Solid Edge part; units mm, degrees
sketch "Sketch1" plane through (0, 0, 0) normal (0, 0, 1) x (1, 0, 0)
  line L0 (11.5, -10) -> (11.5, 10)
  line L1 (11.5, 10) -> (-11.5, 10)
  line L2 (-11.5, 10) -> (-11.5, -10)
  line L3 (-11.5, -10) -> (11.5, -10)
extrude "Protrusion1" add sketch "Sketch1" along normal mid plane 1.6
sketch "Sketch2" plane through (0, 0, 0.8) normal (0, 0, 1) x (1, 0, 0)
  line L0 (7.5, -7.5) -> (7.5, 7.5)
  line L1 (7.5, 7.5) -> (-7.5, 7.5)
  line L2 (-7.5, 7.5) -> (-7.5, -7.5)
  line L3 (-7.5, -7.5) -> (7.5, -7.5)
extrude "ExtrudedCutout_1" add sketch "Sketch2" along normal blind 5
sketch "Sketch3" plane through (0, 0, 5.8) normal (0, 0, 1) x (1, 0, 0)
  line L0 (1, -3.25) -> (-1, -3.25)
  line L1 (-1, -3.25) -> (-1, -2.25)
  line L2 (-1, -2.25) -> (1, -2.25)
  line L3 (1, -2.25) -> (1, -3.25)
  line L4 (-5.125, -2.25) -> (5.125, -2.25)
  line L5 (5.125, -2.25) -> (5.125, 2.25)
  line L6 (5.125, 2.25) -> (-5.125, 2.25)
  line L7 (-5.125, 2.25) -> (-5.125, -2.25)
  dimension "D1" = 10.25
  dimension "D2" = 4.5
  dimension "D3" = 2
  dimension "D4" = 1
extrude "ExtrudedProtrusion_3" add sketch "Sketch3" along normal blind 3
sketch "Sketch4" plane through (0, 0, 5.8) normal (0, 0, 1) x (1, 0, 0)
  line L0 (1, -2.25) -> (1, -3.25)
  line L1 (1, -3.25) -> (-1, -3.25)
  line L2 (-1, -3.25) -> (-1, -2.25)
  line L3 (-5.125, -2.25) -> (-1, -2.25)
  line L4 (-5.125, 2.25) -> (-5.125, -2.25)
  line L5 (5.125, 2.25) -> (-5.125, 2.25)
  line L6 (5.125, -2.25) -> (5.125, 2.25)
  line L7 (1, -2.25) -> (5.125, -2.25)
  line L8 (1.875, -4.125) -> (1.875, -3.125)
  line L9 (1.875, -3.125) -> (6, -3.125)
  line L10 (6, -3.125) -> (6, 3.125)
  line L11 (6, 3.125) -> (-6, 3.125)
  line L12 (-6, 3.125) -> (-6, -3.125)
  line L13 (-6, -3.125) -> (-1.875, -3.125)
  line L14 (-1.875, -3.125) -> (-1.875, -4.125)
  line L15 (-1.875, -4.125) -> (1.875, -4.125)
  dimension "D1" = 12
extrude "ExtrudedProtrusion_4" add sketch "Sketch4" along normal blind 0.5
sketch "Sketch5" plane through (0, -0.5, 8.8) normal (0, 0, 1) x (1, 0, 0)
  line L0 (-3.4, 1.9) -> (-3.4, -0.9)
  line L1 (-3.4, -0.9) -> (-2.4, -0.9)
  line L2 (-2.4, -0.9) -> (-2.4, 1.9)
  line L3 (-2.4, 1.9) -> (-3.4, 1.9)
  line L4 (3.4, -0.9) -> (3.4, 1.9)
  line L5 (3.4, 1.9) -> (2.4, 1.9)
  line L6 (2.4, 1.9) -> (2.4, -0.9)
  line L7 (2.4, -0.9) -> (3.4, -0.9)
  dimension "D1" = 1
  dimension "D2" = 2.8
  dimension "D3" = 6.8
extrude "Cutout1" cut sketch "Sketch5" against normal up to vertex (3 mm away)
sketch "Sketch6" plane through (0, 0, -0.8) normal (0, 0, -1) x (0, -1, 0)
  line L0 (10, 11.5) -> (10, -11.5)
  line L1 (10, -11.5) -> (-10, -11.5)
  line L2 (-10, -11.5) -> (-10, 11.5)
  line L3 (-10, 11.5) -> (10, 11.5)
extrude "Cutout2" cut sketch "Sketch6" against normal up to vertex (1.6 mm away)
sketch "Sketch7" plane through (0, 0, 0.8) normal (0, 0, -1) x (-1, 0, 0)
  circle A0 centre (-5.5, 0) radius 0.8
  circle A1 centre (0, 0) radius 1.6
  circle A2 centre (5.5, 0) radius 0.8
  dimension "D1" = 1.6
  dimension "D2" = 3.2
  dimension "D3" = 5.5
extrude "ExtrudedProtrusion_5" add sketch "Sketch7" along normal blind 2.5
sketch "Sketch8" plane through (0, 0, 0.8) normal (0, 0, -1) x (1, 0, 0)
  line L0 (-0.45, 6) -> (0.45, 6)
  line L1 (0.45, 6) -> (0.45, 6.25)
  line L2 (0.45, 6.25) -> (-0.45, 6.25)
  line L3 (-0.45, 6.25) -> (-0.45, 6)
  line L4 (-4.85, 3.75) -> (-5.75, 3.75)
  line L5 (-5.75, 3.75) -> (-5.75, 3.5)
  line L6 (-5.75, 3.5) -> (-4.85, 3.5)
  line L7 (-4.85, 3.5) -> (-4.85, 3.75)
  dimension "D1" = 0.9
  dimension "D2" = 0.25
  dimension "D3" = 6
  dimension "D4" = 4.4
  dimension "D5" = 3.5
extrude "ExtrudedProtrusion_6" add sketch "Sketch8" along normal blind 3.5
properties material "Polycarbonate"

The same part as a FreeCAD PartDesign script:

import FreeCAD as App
import Part
import Sketcher
from FreeCAD import Vector
Q = App.Units.Quantity


def add_polygon(sketch, points):
    """Adds a closed chain of lines whose ends are joined by coincident constraints."""
    first, n = sketch.GeometryCount, len(points)
    for a, b in zip(points, points[1:] + points[:1]):
        sketch.addGeometry(Part.LineSegment(App.Vector(*a, 0), App.Vector(*b, 0)), False)
    for i in range(n):
        sketch.addConstraint(Sketcher.Constraint("Coincident", first + i, 2, first + (i + 1) % n, 1))

doc = App.newDocument("Part")
body = doc.addObject("PartDesign::Body", "Body")

# Sketch on XY plane
sketch1 = body.newObject("Sketcher::SketchObject", "Sketch")
sketch1.AttachmentSupport = (doc.getObject("XY_Plane"), [""])
sketch1.MapMode = "FlatFace"
add_polygon(sketch1, [(-12, -10), (12, -10), (12, 10), (-12, 10)])  # lines 0-3
sketch1.addConstraint(Sketcher.Constraint("Horizontal", 0))
sketch1.addConstraint(Sketcher.Constraint("Vertical", 1))
sketch1.addConstraint(Sketcher.Constraint("Horizontal", 2))
sketch1.addConstraint(Sketcher.Constraint("Vertical", 3))
sketch1.addConstraint(Sketcher.Constraint("Symmetric", 0, 2, 2, 2, -1, 1))
sketch1.addConstraint(Sketcher.Constraint("DistanceX", 0, 1, 0, 2, Q("23 mm")))
sketch1.addConstraint(Sketcher.Constraint("DistanceY", 1, 1, 1, 2, Q("20 mm")))
pad1 = body.newObject("PartDesign::Pad", "Pad")
pad1.Profile = sketch1
pad1.Length = 1.6
pad1.Midplane = True

# Sketch on XY plane
sketch2 = body.newObject("Sketcher::SketchObject", "Sketch001")
sketch2.AttachmentSupport = (doc.getObject("XY_Plane"), [""])
sketch2.MapMode = "FlatFace"
sketch2.AttachmentOffset = App.Placement(Vector(0, 0, 0.8), App.Rotation())
add_polygon(sketch2, [(-8, -8), (8, -8), (8, 8), (-8, 8)])  # lines 0-3
sketch2.addConstraint(Sketcher.Constraint("Horizontal", 0))
sketch2.addConstraint(Sketcher.Constraint("Vertical", 1))
sketch2.addConstraint(Sketcher.Constraint("Horizontal", 2))
sketch2.addConstraint(Sketcher.Constraint("Vertical", 3))
sketch2.addConstraint(Sketcher.Constraint("Symmetric", 0, 2, 2, 2, -1, 1))
sketch2.addConstraint(Sketcher.Constraint("Equal", 2, 1))
sketch2.addConstraint(Sketcher.Constraint("DistanceX", 0, 1, 0, 2, Q("15 mm")))
pad2 = body.newObject("PartDesign::Pad", "Pad001")
pad2.Profile = sketch2
pad2.Length = 5

# Sketch on XY plane
sketch3 = body.newObject("Sketcher::SketchObject", "Sketch002")
sketch3.AttachmentSupport = (doc.getObject("XY_Plane"), [""])
sketch3.MapMode = "FlatFace"
sketch3.AttachmentOffset = App.Placement(Vector(0, 0, 5.8), App.Rotation())
add_polygon(sketch3, [(-1, -3.2), (1, -3.2), (1, -2.2), (5.1, -2.2), (5.1, 2.2), (-5.1, 2.2), (-5.1, -2.2), (-1, -2.2)])  # lines 0-7
sketch3.addConstraint(Sketcher.Constraint("Horizontal", 0))
sketch3.addConstraint(Sketcher.Constraint("Vertical", 1))
sketch3.addConstraint(Sketcher.Constraint("Horizontal", 2))
sketch3.addConstraint(Sketcher.Constraint("Vertical", 3))
sketch3.addConstraint(Sketcher.Constraint("Horizontal", 4))
sketch3.addConstraint(Sketcher.Constraint("Vertical", 5))
sketch3.addConstraint(Sketcher.Constraint("Horizontal", 6))
sketch3.addConstraint(Sketcher.Constraint("Vertical", 7))
sketch3.addConstraint(Sketcher.Constraint("Symmetric", 2, 2, 4, 2, -1, 1))
sketch3.addConstraint(Sketcher.Constraint("Symmetric", 1, 2, 6, 2, -2))
sketch3.addConstraint(Sketcher.Constraint("DistanceX", 0, 1, 0, 2, Q("2 mm")))
sketch3.addConstraint(Sketcher.Constraint("DistanceY", 1, 1, 1, 2, Q("1 mm")))
sketch3.addConstraint(Sketcher.Constraint("DistanceY", 3, 1, 3, 2, Q("4.5 mm")))
sketch3.addConstraint(Sketcher.Constraint("DistanceX", 4, 2, 4, 1, Q("10.25 mm")))
pad3 = body.newObject("PartDesign::Pad", "Pad002")
pad3.Profile = sketch3
pad3.Length = 3

# Sketch on XY plane
sketch4 = body.newObject("Sketcher::SketchObject", "Sketch003")
sketch4.AttachmentSupport = (doc.getObject("XY_Plane"), [""])
sketch4.MapMode = "FlatFace"
sketch4.AttachmentOffset = App.Placement(Vector(0, 0, 5.8), App.Rotation())
add_polygon(sketch4, [(-1.9, -4.1), (1.9, -4.1), (1.9, -3.1), (6, -3.1), (6, 3.1), (-6, 3.1), (-6, -3.1), (-1.9, -3.1)])  # lines 0-7
add_polygon(sketch4, [(5.1, -2.2), (1, -2.2), (1, -3.2), (-1, -3.2), (-1, -2.2), (-5.1, -2.2), (-5.1, 2.2), (5.1, 2.2)])  # lines 8-15
sketch4.addConstraint(Sketcher.Constraint("Horizontal", 0))
sketch4.addConstraint(Sketcher.Constraint("Vertical", 1))
sketch4.addConstraint(Sketcher.Constraint("Horizontal", 2))
sketch4.addConstraint(Sketcher.Constraint("Vertical", 3))
sketch4.addConstraint(Sketcher.Constraint("Horizontal", 4))
sketch4.addConstraint(Sketcher.Constraint("Vertical", 5))
sketch4.addConstraint(Sketcher.Constraint("Horizontal", 6))
sketch4.addConstraint(Sketcher.Constraint("Vertical", 7))
sketch4.addConstraint(Sketcher.Constraint("Horizontal", 8))
sketch4.addConstraint(Sketcher.Constraint("Vertical", 9))
sketch4.addConstraint(Sketcher.Constraint("Horizontal", 10))
sketch4.addConstraint(Sketcher.Constraint("Vertical", 11))
sketch4.addConstraint(Sketcher.Constraint("Horizontal", 12))
sketch4.addConstraint(Sketcher.Constraint("Vertical", 13))
sketch4.addConstraint(Sketcher.Constraint("Horizontal", 14))
sketch4.addConstraint(Sketcher.Constraint("Vertical", 15))
sketch4.addConstraint(Sketcher.Constraint("Symmetric", 2, 2, 4, 2, -1, 1))
sketch4.addConstraint(Sketcher.Constraint("Symmetric", 12, 2, 14, 2, -1, 1))
sketch4.addConstraint(Sketcher.Constraint("Symmetric", 1, 2, 6, 2, -2))
sketch4.addConstraint(Sketcher.Constraint("Symmetric", 8, 2, 11, 2, -2))
sketch4.addConstraint(Sketcher.Constraint("Equal", 6, 8))
sketch4.addConstraint(Sketcher.Constraint("Equal", 7, 9))
sketch4.addConstraint(Sketcher.Constraint("DistanceX", 4, 2, 4, 1, Q("12 mm")))
sketch4.addConstraint(Sketcher.Constraint("DistanceX", 10, 2, 10, 1, Q("2 mm")))
sketch4.addConstraint(Sketcher.Constraint("DistanceY", 1, 1, 1, 2, Q("1 mm")))
sketch4.addConstraint(Sketcher.Constraint("DistanceY", 13, 1, 13, 2, Q("4.5 mm")))
sketch4.addConstraint(Sketcher.Constraint("DistanceX", 0, 1, 0, 2, Q("3.75 mm")))
sketch4.addConstraint(Sketcher.Constraint("DistanceY", 3, 1, 3, 2, Q("6.25 mm")))
pad4 = body.newObject("PartDesign::Pad", "Pad003")
pad4.Profile = sketch4
pad4.Length = 0.5

# Sketch on XY plane
sketch5 = body.newObject("Sketcher::SketchObject", "Sketch004")
sketch5.AttachmentSupport = (doc.getObject("XY_Plane"), [""])
sketch5.MapMode = "FlatFace"
sketch5.AttachmentOffset = App.Placement(Vector(0, 0, 8.8), App.Rotation())
add_polygon(sketch5, [(-2.4, 1.4), (-3.4, 1.4), (-3.4, -1.4), (-2.4, -1.4)])  # lines 0-3
add_polygon(sketch5, [(2.4, -1.4), (3.4, -1.4), (3.4, 1.4), (2.4, 1.4)])  # lines 4-7
sketch5.addConstraint(Sketcher.Constraint("Horizontal", 0))
sketch5.addConstraint(Sketcher.Constraint("Vertical", 1))
sketch5.addConstraint(Sketcher.Constraint("Horizontal", 2))
sketch5.addConstraint(Sketcher.Constraint("Vertical", 3))
sketch5.addConstraint(Sketcher.Constraint("Horizontal", 4))
sketch5.addConstraint(Sketcher.Constraint("Vertical", 5))
sketch5.addConstraint(Sketcher.Constraint("Horizontal", 6))
sketch5.addConstraint(Sketcher.Constraint("Vertical", 7))
sketch5.addConstraint(Sketcher.Constraint("Symmetric", 0, 2, 4, 2, -1, 1))
sketch5.addConstraint(Sketcher.Constraint("Symmetric", 2, 2, 6, 2, -1, 1))
sketch5.addConstraint(Sketcher.Constraint("Horizontal", 2, 2, 4, 2))
sketch5.addConstraint(Sketcher.Constraint("DistanceX", 0, 2, 0, 1, Q("1 mm")))
sketch5.addConstraint(Sketcher.Constraint("DistanceY", 1, 2, 1, 1, Q("2.8 mm")))
sketch5.addConstraint(Sketcher.Constraint("DistanceX", 0, 2, -1, 1, Q("3.4 mm")))
pocket1 = body.newObject("PartDesign::Pocket", "Pocket")
pocket1.Profile = sketch5
pocket1.Length = 3

# Sketch on XY plane
sketch6 = body.newObject("Sketcher::SketchObject", "Sketch005")
sketch6.AttachmentSupport = (doc.getObject("XY_Plane"), [""])
sketch6.MapMode = "FlatFace"
sketch6.AttachmentOffset = App.Placement(Vector(0, 0, -0.8), App.Rotation())
add_polygon(sketch6, [(12, -10), (-12, -10), (-12, 10), (12, 10)])  # lines 0-3
sketch6.addConstraint(Sketcher.Constraint("Horizontal", 0))
sketch6.addConstraint(Sketcher.Constraint("Vertical", 1))
sketch6.addConstraint(Sketcher.Constraint("Horizontal", 2))
sketch6.addConstraint(Sketcher.Constraint("Vertical", 3))
sketch6.addConstraint(Sketcher.Constraint("Symmetric", 0, 2, 2, 2, -1, 1))
sketch6.addConstraint(Sketcher.Constraint("DistanceX", 0, 2, 0, 1, Q("23 mm")))
sketch6.addConstraint(Sketcher.Constraint("DistanceY", 1, 1, 1, 2, Q("20 mm")))
pocket2 = body.newObject("PartDesign::Pocket", "Pocket001")
pocket2.Profile = sketch6
pocket2.Length = 1.6
pocket2.Reversed = True

# Sketch on XY plane
sketch7 = body.newObject("Sketcher::SketchObject", "Sketch006")
sketch7.AttachmentSupport = (doc.getObject("XY_Plane"), [""])
sketch7.MapMode = "FlatFace"
sketch7.AttachmentOffset = App.Placement(Vector(0, 0, 0.8), App.Rotation())
sketch7.addGeometry(Part.Circle(Vector(5.5, 0, 0), Vector(0, 0, 1), 0.8), False)
sketch7.addGeometry(Part.Circle(Vector(0, 0, 0), Vector(0, 0, 1), 1.6), False)
sketch7.addGeometry(Part.Circle(Vector(-5.5, 0, 0), Vector(0, 0, 1), 0.8), False)
sketch7.addConstraint(Sketcher.Constraint("Coincident", 1, 3, -1, 1))
sketch7.addConstraint(Sketcher.Constraint("Equal", 0, 2))
sketch7.addConstraint(Sketcher.Constraint("Symmetric", 0, 3, 2, 3, -1, 1))
sketch7.addConstraint(Sketcher.Constraint("PointOnObject", 0, 3, -1))
sketch7.addConstraint(Sketcher.Constraint("Diameter", 0, Q("1.6 mm")))
sketch7.addConstraint(Sketcher.Constraint("Diameter", 1, Q("3.2 mm")))
sketch7.addConstraint(Sketcher.Constraint("DistanceX", 2, 3, 0, 3, Q("11 mm")))
pad5 = body.newObject("PartDesign::Pad", "Pad004")
pad5.Profile = sketch7
pad5.Length = 2.5
pad5.Reversed = True

# Sketch on XY plane
sketch8 = body.newObject("Sketcher::SketchObject", "Sketch007")
sketch8.AttachmentSupport = (doc.getObject("XY_Plane"), [""])
sketch8.MapMode = "FlatFace"
sketch8.AttachmentOffset = App.Placement(Vector(0, 0, 0.8), App.Rotation())
add_polygon(sketch8, [(-0.45, -6.25), (-0.45, -6), (0.45, -6), (0.45, -6.25)])  # lines 0-3
add_polygon(sketch8, [(-4.85, -3.5), (-4.85, -3.75), (-5.75, -3.75), (-5.75, -3.5)])  # lines 4-7
sketch8.addConstraint(Sketcher.Constraint("Vertical", 0))
sketch8.addConstraint(Sketcher.Constraint("Horizontal", 1))
sketch8.addConstraint(Sketcher.Constraint("Vertical", 2))
sketch8.addConstraint(Sketcher.Constraint("Horizontal", 3))
sketch8.addConstraint(Sketcher.Constraint("Vertical", 4))
sketch8.addConstraint(Sketcher.Constraint("Horizontal", 5))
sketch8.addConstraint(Sketcher.Constraint("Vertical", 6))
sketch8.addConstraint(Sketcher.Constraint("Horizontal", 7))
sketch8.addConstraint(Sketcher.Constraint("Equal", 3, 5))
sketch8.addConstraint(Sketcher.Constraint("Equal", 2, 4))
sketch8.addConstraint(Sketcher.Constraint("DistanceX", 1, 1, 1, 2, Q("0.9 mm")))
sketch8.addConstraint(Sketcher.Constraint("DistanceY", 0, 2, -1, 1, Q("6 mm")))
sketch8.addConstraint(Sketcher.Constraint("DistanceY", 0, 1, 0, 2, Q("0.25 mm")))
sketch8.addConstraint(Sketcher.Constraint("DistanceY", 6, 2, -1, 1, Q("3.5 mm")))
sketch8.addConstraint(Sketcher.Constraint("DistanceX", 4, 2, 0, 2, Q("4.4 mm")))
sketch8.addConstraint(Sketcher.Constraint("DistanceX", 0, 2, -1, 1, Q("0.45 mm")))
pad6 = body.newObject("PartDesign::Pad", "Pad005")
pad6.Profile = sketch8
pad6.Length = 3.5
pad6.Reversed = True

doc.recompute()
